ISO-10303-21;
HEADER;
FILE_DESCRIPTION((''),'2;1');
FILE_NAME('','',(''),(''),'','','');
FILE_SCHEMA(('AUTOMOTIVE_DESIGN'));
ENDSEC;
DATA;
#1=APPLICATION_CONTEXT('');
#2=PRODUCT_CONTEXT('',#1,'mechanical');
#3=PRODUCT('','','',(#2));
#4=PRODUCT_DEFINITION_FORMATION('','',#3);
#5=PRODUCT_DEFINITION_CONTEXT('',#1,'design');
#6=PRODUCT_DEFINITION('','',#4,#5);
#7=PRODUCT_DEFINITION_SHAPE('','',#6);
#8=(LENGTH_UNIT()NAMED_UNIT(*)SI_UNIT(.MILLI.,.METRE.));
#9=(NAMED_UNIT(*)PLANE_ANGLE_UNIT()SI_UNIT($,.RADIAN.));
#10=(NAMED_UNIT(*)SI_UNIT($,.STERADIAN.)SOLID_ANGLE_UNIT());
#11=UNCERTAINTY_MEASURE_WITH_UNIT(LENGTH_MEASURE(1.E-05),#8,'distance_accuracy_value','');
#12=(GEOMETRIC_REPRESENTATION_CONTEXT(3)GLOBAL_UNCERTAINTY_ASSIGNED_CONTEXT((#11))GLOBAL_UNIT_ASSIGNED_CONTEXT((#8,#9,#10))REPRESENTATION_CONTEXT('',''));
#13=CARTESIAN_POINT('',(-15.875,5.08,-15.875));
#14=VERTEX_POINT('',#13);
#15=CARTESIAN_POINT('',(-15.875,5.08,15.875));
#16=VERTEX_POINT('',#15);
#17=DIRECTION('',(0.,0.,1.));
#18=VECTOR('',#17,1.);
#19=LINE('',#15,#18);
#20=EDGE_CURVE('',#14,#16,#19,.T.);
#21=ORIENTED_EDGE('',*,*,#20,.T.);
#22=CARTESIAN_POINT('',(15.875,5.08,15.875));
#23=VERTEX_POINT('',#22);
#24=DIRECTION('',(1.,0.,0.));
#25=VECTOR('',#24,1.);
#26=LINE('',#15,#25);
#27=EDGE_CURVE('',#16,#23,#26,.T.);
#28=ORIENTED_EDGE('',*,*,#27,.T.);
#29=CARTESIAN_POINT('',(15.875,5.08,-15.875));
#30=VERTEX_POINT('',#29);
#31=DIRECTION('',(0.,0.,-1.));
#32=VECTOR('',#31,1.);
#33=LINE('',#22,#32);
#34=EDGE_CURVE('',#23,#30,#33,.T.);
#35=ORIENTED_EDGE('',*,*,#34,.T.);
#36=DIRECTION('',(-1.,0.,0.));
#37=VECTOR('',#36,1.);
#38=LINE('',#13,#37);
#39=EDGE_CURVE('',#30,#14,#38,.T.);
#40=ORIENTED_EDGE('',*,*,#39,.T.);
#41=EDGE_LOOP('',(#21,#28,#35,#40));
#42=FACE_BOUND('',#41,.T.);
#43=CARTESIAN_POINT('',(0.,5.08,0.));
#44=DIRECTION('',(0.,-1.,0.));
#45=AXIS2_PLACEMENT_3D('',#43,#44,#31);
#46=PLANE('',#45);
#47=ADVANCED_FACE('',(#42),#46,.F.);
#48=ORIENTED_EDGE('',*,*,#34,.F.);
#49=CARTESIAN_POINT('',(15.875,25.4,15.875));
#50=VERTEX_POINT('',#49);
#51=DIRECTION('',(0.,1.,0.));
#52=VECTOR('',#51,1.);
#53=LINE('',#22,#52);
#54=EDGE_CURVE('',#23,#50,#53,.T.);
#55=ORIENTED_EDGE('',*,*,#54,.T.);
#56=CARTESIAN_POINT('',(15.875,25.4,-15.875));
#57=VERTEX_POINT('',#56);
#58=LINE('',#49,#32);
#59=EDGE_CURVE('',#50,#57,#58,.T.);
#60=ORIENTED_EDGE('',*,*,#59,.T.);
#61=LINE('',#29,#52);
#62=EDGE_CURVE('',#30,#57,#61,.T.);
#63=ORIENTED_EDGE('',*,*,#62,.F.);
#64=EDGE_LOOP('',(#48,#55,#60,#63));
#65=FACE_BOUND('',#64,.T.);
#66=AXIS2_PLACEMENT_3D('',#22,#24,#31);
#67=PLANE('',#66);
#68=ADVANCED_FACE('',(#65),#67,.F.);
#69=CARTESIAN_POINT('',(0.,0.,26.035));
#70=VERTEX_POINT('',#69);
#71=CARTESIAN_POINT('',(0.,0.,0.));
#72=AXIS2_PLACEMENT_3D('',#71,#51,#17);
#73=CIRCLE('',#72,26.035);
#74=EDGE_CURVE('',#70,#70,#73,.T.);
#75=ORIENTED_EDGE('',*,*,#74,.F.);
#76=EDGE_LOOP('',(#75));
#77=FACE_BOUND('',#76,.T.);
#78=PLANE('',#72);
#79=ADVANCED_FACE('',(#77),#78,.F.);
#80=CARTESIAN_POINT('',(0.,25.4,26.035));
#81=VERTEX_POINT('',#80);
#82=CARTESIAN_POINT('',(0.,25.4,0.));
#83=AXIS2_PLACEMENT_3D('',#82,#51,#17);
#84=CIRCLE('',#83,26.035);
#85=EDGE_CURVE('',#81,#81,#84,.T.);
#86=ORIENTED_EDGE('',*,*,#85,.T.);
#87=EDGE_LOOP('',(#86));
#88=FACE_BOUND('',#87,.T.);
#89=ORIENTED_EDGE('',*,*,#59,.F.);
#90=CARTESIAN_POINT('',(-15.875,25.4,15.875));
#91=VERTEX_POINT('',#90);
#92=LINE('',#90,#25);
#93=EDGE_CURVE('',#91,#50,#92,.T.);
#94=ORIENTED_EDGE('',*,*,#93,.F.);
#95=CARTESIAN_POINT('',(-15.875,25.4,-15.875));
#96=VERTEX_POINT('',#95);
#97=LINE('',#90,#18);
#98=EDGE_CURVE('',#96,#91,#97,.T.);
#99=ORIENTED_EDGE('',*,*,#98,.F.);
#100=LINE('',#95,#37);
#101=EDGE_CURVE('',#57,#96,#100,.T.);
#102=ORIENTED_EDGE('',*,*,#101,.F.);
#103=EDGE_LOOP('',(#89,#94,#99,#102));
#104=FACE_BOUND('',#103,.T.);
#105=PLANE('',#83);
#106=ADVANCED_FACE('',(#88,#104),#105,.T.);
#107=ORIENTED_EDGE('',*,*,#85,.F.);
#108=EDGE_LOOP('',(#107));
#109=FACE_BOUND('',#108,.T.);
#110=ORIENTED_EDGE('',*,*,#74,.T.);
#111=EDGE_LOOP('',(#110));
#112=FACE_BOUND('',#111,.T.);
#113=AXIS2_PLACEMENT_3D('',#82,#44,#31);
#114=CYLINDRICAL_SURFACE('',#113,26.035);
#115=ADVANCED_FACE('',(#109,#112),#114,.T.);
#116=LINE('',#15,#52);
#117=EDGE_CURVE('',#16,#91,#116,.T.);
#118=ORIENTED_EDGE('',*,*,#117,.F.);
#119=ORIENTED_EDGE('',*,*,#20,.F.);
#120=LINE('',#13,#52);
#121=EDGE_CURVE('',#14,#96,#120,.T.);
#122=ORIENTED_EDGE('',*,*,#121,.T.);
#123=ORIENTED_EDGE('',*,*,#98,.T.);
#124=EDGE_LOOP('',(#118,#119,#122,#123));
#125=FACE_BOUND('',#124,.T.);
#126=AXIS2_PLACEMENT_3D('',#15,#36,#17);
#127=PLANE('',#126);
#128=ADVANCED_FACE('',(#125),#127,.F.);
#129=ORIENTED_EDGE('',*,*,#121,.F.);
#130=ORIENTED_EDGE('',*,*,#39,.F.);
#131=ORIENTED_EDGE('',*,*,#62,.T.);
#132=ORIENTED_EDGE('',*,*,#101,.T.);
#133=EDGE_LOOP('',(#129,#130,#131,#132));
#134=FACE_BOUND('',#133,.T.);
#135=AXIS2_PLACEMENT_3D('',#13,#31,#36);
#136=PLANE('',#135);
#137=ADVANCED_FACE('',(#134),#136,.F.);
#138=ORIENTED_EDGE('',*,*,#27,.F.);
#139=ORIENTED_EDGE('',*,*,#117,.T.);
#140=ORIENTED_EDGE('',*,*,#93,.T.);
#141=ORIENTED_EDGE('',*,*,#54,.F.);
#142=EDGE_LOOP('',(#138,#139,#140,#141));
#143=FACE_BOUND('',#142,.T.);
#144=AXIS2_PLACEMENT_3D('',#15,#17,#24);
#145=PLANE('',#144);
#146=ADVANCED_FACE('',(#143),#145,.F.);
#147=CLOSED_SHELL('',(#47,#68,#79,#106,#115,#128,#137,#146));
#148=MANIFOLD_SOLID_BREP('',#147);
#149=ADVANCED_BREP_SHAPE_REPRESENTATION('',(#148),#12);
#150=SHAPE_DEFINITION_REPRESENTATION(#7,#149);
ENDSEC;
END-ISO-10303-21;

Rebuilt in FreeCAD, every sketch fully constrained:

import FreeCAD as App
import Part
import Sketcher
Q = App.Units.Quantity


def add_polygon(sketch, points):
    """Adds a closed chain of lines whose ends are joined by coincident constraints."""
    first, n = sketch.GeometryCount, len(points)
    for a, b in zip(points, points[1:] + points[:1]):
        sketch.addGeometry(Part.LineSegment(App.Vector(*a, 0), App.Vector(*b, 0)), False)
    for i in range(n):
        sketch.addConstraint(Sketcher.Constraint("Coincident", first + i, 2, first + (i + 1) % n, 1))

doc = App.newDocument("Part")
body = doc.addObject("PartDesign::Body", "Body")

# Sketch on XZ plane
sketch1 = body.newObject("Sketcher::SketchObject", "Sketch")
sketch1.AttachmentSupport = (doc.getObject("XZ_Plane"), [""])
sketch1.MapMode = "FlatFace"
sketch1.addGeometry(Part.Circle(App.Vector(0, 0, 0), App.Vector(0, 0, 1), 26), False)
sketch1.addConstraint([
    Sketcher.Constraint("Coincident", 0, 3, -1, 1),
    Sketcher.Constraint("Diameter", 0, Q("2.05 in")),
])
pad1 = body.newObject("PartDesign::Pad", "Pad")
pad1.Profile = sketch1
pad1.Length = Q("1 in")
pad1.Reversed = True

# Sketch on XZ plane
sketch2 = body.newObject("Sketcher::SketchObject", "Sketch001")
sketch2.AttachmentSupport = (doc.getObject("XZ_Plane"), [""])
sketch2.MapMode = "FlatFace"
sketch2.AttachmentOffset = App.Placement(App.Vector(0, 0, -1 * 25.4), App.Rotation())
add_polygon(sketch2, [(-16, -16), (-16, 16), (16, 16), (16, -16)])  # lines 0-3
sketch2.addConstraint([
    Sketcher.Constraint("Vertical", 0),
    Sketcher.Constraint("Horizontal", 1),
    Sketcher.Constraint("Vertical", 2),
    Sketcher.Constraint("Horizontal", 3),
    Sketcher.Constraint("Symmetric", 0, 2, 2, 2, -1, 1),
    Sketcher.Constraint("Equal", 3, 0),
    Sketcher.Constraint("DistanceX", 1, 1, 1, 2, Q("1.25 in")),
])
pocket1 = body.newObject("PartDesign::Pocket", "Pocket")
pocket1.Profile = sketch2
pocket1.Length = Q("0.8 in")
pocket1.Reversed = True

doc.recompute()
